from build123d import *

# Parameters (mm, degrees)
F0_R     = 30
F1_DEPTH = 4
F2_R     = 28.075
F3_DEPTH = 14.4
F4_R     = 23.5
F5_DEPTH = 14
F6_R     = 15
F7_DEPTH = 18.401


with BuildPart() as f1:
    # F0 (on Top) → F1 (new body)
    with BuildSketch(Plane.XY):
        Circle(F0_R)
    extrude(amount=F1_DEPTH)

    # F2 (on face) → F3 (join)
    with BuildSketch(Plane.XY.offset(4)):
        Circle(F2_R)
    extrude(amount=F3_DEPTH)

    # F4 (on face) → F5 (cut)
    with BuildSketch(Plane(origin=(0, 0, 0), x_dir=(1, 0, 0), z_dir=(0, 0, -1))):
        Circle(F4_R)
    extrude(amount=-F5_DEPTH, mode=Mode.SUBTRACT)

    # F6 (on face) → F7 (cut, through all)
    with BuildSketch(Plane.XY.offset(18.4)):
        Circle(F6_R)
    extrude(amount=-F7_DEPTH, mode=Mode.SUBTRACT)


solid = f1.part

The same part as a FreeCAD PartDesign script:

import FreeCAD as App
import Part
import Sketcher
Q = App.Units.Quantity

doc = App.newDocument("Part")
body = doc.addObject("PartDesign::Body", "Body")

sketch1 = body.newObject("Sketcher::SketchObject", "Sketch")
sketch1.AttachmentSupport = (doc.getObject("XY_Plane"), [""])
sketch1.MapMode = "FlatFace"
sketch1.addGeometry(Part.Circle(App.Vector(0, 0, 0), App.Vector(0, 0, 1), 30), False)
sketch1.addConstraint(Sketcher.Constraint("Coincident", 0, 3, -1, 1))
sketch1.addConstraint(Sketcher.Constraint("Diameter", 0, Q("60 mm")))
pad1 = body.newObject("PartDesign::Pad", "Pad")
pad1.Profile = sketch1
pad1.Length = 4

sketch2 = body.newObject("Sketcher::SketchObject", "Sketch001")
sketch2.AttachmentSupport = (doc.getObject("XY_Plane"), [""])
sketch2.MapMode = "FlatFace"
sketch2.AttachmentOffset = App.Placement(App.Vector(0, 0, 4), App.Rotation())
sketch2.addGeometry(Part.Circle(App.Vector(0, 0, 0), App.Vector(0, 0, 1), 28), False)
sketch2.addConstraint(Sketcher.Constraint("Coincident", 0, 3, -1, 1))
sketch2.addConstraint(Sketcher.Constraint("Diameter", 0, Q("56.15 mm")))
pad2 = body.newObject("PartDesign::Pad", "Pad001")
pad2.Profile = sketch2
pad2.Length = 14.4

sketch3 = body.newObject("Sketcher::SketchObject", "Sketch002")
sketch3.AttachmentSupport = (doc.getObject("XY_Plane"), [""])
sketch3.MapMode = "FlatFace"
sketch3.addGeometry(Part.Circle(App.Vector(0, 0, 0), App.Vector(0, 0, 1), 24), False)
sketch3.addConstraint(Sketcher.Constraint("Coincident", 0, 3, -1, 1))
sketch3.addConstraint(Sketcher.Constraint("Diameter", 0, Q("47 mm")))
pocket1 = body.newObject("PartDesign::Pocket", "Pocket")
pocket1.Profile = sketch3
pocket1.Length = 14
pocket1.Reversed = True

sketch4 = body.newObject("Sketcher::SketchObject", "Sketch003")
sketch4.AttachmentSupport = (doc.getObject("XY_Plane"), [""])
sketch4.MapMode = "FlatFace"
sketch4.AttachmentOffset = App.Placement(App.Vector(0, 0, 18.4), App.Rotation())
sketch4.addGeometry(Part.Circle(App.Vector(0, 0, 0), App.Vector(0, 0, 1), 15), False)
sketch4.addConstraint(Sketcher.Constraint("Coincident", 0, 3, -1, 1))
sketch4.addConstraint(Sketcher.Constraint("Diameter", 0, Q("30 mm")))
pocket2 = body.newObject("PartDesign::Pocket", "Pocket001")
pocket2.Profile = sketch4
pocket2.Type = "ThroughAll"

doc.recompute()
